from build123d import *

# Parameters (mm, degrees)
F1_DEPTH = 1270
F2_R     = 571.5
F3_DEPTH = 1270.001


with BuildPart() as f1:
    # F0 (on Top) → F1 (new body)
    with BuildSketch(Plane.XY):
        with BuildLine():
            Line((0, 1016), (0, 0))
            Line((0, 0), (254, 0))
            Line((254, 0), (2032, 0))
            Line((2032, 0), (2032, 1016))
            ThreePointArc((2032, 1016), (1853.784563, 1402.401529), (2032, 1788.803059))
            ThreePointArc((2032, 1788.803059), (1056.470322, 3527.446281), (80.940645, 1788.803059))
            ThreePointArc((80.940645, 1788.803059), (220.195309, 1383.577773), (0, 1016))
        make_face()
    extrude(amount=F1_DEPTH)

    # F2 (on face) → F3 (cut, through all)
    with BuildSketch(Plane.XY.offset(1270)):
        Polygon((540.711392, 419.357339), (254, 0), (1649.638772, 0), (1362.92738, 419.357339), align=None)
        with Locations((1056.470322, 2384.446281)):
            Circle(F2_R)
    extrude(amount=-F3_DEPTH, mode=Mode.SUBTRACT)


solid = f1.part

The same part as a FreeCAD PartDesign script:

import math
import FreeCAD as App
import Part
import Sketcher
Q = App.Units.Quantity

doc = App.newDocument("Part")
body = doc.addObject("PartDesign::Body", "Body")

# Sketch on XY plane
sketch1 = doc.addObject("Sketcher::SketchObject", "Sketch")
body.addObject(sketch1)
sketch1.AttachmentSupport = (doc.XY_Plane, [""])
sketch1.MapMode = "FlatFace"
sketch1.addGeometry([
    Part.LineSegment(App.Vector(0, 1016, 0), App.Vector(0, 0, 0)),  # 0
    Part.LineSegment(App.Vector(0, 0, 0), App.Vector(2032, 0, 0)),  # 1
    Part.LineSegment(App.Vector(2032, 0, 0), App.Vector(2032, 1016, 0)),  # 2
    Part.ArcOfCircle(Part.Circle(App.Vector(2361.784563, 1402.401529, 0), App.Vector(0, 0, 1), 508), math.radians(130.479972), math.radians(229.520028)),  # 3
    Part.ArcOfCircle(Part.Circle(App.Vector(1056.470323, 2384.446281, 0), App.Vector(0, 0, 1), 1143), math.radians(-31.407589), math.radians(211.407589)),  # 4
    Part.ArcOfCircle(Part.Circle(App.Vector(-285.041098, 1436.494438, 0), App.Vector(0, 0, 1), 508), math.radians(-55.867783), math.radians(43.909469)),  # 5
], False)
sketch1.addConstraint([
    Sketcher.Constraint("Coincident", 0, 2, 1, 1),
    Sketcher.Constraint("Coincident", 1, 2, 2, 1),
    Sketcher.Constraint("Coincident", 2, 2, 3, 2),
    Sketcher.Constraint("Coincident", 3, 1, 4, 1),
    Sketcher.Constraint("Coincident", 4, 2, 5, 2),
    Sketcher.Constraint("Coincident", 5, 1, 0, 1),
    Sketcher.Constraint("Vertical", 0),
    Sketcher.Constraint("Horizontal", 1),
    Sketcher.Constraint("Vertical", 2),
    Sketcher.Constraint("Coincident", 0, 2, -1, 1),
    Sketcher.Constraint("Equal", 3, 5),
    Sketcher.Constraint("Horizontal", 3, 1, 4, 2),
    Sketcher.Constraint("Horizontal", 2, 2, 5, 1),
    Sketcher.Constraint("Vertical", 2, 2, 3, 1),
    Sketcher.Constraint("Radius", 3, Q("20 in")),
    Sketcher.Constraint("Radius", 4, Q("45 in")),
    Sketcher.Constraint("DistanceX", 1, 1, 1, 2, Q("80 in")),
    Sketcher.Constraint("DistanceY", 0, 2, 0, 1, Q("40 in")),
    Sketcher.Constraint("DistanceY", -1, 1, 3, 3, Q("1402.401529 mm")),
    Sketcher.Constraint("DistanceY", -1, 1, 4, 3, Q("2384.446281 mm")),
])
pad1 = doc.addObject("PartDesign::Pad", "Pad")
body.addObject(pad1)
pad1.Profile = sketch1
pad1.Length = Q("50 in")

# Sketch on XY plane
sketch2 = doc.addObject("Sketcher::SketchObject", "Sketch001")
body.addObject(sketch2)
sketch2.AttachmentSupport = (doc.XY_Plane, [""])
sketch2.MapMode = "FlatFace"
sketch2.AttachmentOffset = App.Placement(App.Vector(0, 0, 50 * 25.4), App.Rotation())
sketch2.addGeometry([
    Part.LineSegment(App.Vector(540.711392, 419.357339, 0), App.Vector(254, 0, 0)),  # 0
    Part.LineSegment(App.Vector(254, 0, 0), App.Vector(1649.638772, 0, 0)),  # 1
    Part.LineSegment(App.Vector(1649.638772, 0, 0), App.Vector(1362.92738, 419.357339, 0)),  # 2
    Part.LineSegment(App.Vector(1362.92738, 419.357339, 0), App.Vector(540.711392, 419.357339, 0)),  # 3
    Part.Circle(App.Vector(1056.470322, 2384.446281, 0), App.Vector(0, 0, 1), 571.5),  # 4
], False)
sketch2.addConstraint([
    Sketcher.Constraint("Coincident", 0, 2, 1, 1),
    Sketcher.Constraint("Coincident", 1, 2, 2, 1),
    Sketcher.Constraint("Coincident", 2, 2, 3, 1),
    Sketcher.Constraint("Coincident", 3, 2, 0, 1),
    Sketcher.Constraint("Horizontal", 1),
    Sketcher.Constraint("Horizontal", 3),
    Sketcher.Constraint("PointOnObject", 0, 2, -1),
    Sketcher.Constraint("Equal", 0, 2),
    Sketcher.Constraint("Diameter", 4, Q("45 in")),
    Sketcher.Constraint("Distance", 0, Q("20 in")),
    Sketcher.Constraint("DistanceX", -1, 1, 0, 2, Q("10 in")),
    Sketcher.Constraint("DistanceX", 1, 1, 1, 2, Q("1395.638772 mm")),
    Sketcher.Constraint("DistanceX", 3, 2, 3, 1, Q("822.215988 mm")),
    Sketcher.Constraint("DistanceX", -1, 1, 4, 3, Q("1056.470322 mm")),
    Sketcher.Constraint("DistanceY", -1, 1, 4, 3, Q("2384.446281 mm")),
])
pocket1 = doc.addObject("PartDesign::Pocket", "Pocket")
body.addObject(pocket1)
pocket1.Profile = sketch2
pocket1.Type = "ThroughAll"

doc.recompute()
